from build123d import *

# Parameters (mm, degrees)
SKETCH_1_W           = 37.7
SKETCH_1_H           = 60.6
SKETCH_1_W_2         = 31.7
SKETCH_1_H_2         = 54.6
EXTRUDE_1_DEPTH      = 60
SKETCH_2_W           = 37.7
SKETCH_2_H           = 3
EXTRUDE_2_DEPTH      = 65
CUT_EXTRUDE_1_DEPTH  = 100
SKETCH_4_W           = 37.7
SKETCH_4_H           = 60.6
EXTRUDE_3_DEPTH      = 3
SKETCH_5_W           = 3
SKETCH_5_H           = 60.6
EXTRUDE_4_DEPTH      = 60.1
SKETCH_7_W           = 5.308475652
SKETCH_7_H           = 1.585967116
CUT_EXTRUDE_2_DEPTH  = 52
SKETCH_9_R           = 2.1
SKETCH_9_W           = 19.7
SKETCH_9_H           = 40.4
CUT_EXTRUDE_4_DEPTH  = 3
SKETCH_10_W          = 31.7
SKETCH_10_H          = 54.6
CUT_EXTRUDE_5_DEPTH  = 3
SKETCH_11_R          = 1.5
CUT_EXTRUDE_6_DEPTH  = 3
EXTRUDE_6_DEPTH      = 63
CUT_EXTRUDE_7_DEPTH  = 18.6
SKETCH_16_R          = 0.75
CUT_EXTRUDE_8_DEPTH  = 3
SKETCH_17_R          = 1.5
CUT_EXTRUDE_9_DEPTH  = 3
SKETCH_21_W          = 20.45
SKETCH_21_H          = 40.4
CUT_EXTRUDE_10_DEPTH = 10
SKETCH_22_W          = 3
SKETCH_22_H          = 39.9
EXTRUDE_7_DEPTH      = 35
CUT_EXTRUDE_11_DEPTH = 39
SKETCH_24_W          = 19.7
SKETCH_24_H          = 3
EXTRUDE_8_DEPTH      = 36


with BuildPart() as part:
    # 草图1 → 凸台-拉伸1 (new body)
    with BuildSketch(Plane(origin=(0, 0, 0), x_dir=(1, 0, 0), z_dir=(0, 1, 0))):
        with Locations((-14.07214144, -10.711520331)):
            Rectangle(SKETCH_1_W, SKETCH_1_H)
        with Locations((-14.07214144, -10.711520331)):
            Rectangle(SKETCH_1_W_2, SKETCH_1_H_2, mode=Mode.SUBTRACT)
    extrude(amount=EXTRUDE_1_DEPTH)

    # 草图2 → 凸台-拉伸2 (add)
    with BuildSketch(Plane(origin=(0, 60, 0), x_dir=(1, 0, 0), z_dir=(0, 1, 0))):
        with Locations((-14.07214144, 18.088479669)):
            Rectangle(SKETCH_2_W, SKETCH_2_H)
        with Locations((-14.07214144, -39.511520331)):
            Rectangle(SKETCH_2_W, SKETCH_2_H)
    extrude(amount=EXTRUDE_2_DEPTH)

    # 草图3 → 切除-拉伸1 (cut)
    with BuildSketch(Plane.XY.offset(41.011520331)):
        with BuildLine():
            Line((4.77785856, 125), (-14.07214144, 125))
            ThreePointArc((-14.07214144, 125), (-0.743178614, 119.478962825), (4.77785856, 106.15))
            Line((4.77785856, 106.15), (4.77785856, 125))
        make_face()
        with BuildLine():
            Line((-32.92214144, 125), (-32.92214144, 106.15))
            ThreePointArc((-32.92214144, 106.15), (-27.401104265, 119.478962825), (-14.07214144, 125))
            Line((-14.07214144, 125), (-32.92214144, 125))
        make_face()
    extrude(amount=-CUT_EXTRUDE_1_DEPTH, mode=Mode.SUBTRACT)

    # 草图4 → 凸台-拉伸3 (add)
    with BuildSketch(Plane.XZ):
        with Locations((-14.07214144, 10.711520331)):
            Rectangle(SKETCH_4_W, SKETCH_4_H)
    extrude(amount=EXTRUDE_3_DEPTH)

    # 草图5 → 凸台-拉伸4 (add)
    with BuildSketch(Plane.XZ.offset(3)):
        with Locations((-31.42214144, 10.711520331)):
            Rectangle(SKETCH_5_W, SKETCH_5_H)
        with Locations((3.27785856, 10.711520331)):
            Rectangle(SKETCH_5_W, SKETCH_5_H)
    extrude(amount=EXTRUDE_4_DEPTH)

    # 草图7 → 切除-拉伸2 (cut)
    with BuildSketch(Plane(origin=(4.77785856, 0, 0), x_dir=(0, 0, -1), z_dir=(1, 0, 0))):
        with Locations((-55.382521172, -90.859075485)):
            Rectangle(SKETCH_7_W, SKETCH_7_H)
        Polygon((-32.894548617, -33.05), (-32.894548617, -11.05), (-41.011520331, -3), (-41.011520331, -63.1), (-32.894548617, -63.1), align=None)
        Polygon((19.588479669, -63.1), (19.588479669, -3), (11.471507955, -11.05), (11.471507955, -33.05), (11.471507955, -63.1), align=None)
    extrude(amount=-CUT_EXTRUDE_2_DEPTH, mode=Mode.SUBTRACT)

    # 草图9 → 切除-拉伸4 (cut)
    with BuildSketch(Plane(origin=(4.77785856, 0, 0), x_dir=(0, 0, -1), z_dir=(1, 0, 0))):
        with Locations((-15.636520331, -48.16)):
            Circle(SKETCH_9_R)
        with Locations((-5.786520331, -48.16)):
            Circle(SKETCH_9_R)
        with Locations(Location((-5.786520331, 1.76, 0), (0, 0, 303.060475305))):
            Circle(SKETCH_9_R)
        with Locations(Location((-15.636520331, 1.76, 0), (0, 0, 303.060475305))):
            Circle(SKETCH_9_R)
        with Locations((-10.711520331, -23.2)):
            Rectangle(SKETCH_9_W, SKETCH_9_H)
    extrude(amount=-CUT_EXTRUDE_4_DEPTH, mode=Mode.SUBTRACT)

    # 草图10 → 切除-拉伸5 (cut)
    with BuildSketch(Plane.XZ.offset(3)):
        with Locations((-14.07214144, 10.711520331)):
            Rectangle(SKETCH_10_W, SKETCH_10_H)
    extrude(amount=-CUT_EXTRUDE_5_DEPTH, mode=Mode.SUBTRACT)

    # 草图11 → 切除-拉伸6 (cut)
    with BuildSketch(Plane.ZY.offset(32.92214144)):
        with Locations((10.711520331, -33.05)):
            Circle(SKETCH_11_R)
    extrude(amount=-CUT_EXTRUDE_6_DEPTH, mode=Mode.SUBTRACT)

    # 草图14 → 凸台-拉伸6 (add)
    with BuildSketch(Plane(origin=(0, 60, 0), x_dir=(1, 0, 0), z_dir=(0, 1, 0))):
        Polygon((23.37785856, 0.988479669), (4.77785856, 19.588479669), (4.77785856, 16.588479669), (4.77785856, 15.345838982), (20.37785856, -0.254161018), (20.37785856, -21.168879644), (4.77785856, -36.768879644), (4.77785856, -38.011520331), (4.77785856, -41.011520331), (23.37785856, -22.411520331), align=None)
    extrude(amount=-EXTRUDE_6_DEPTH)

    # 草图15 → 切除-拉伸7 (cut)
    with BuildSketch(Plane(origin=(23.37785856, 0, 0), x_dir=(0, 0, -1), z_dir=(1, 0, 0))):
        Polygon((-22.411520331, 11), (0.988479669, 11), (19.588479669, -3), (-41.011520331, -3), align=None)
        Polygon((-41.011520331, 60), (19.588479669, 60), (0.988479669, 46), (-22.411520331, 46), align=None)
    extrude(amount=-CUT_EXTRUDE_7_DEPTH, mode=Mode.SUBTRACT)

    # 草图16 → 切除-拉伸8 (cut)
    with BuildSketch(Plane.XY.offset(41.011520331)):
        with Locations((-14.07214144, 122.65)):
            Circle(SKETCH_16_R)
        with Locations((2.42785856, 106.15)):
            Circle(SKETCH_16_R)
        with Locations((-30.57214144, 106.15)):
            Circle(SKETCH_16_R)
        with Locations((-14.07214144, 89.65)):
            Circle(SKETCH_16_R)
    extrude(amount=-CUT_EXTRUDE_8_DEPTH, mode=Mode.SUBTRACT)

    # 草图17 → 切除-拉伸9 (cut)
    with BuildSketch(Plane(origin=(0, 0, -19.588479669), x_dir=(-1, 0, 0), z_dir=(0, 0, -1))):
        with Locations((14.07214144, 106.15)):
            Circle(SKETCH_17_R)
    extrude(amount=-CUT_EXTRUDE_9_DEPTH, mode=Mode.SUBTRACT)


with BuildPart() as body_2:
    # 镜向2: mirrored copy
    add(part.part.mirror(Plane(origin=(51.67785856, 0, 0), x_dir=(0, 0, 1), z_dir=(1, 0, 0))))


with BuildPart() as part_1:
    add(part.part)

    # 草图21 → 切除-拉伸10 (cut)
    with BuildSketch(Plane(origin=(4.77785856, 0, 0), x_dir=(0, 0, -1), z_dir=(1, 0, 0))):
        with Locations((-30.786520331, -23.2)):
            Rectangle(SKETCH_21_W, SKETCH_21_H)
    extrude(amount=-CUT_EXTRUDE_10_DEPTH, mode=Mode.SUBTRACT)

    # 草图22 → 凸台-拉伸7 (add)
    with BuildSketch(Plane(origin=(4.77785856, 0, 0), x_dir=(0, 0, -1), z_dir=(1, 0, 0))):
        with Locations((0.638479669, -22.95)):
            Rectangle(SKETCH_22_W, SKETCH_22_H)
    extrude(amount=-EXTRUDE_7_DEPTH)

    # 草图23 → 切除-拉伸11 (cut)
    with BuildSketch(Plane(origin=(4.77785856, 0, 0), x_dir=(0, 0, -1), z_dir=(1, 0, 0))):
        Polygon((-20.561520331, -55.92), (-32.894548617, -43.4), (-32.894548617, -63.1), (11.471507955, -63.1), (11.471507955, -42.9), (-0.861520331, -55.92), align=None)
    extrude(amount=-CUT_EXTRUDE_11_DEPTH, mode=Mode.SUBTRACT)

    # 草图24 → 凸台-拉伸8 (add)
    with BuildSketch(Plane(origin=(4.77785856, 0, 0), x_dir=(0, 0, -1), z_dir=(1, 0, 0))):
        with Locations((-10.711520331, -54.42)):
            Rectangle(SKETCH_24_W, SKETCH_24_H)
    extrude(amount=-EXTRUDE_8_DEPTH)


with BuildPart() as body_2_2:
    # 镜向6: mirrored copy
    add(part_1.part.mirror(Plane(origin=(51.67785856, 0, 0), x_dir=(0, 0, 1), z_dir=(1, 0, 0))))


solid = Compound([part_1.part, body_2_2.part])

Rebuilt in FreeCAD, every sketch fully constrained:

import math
import FreeCAD as App
import Part
import Sketcher


def add_polygon(sketch, points):
    """Adds a closed chain of lines whose ends are joined by coincident constraints."""
    first, n = sketch.GeometryCount, len(points)
    for a, b in zip(points, points[1:] + points[:1]):
        sketch.addGeometry(Part.LineSegment(App.Vector(*a, 0), App.Vector(*b, 0)), False)
    for i in range(n):
        sketch.addConstraint(Sketcher.Constraint("Coincident", first + i, 2, first + (i + 1) % n, 1))

doc = App.newDocument("Part")
params = doc.addObject("Spreadsheet::Sheet", "Params")
for row, (alias, value) in enumerate([
    ("sketch1_width", "37.7 mm"),
    ("sketch1_width2", "31.7 mm"),
    ("sketch1_height", "60.6 mm"),
    ("sketch1_height2", "54.6 mm"),
    ("pad1_length", "60 mm"),
    ("sketch2_height", "3 mm"),
    ("sketch2_width", "37.7 mm"),
    ("pad2_length", "65 mm"),
    ("sketch3_radius", "18.85 mm"),
    ("pocket1_length", "100 mm"),
    ("sketch4_width", "37.7 mm"),
    ("sketch4_height", "60.6 mm"),
    ("pad3_length", "3 mm"),
    ("sketch5_width", "3 mm"),
    ("sketch5_height", "60.6 mm"),
    ("pad4_length", "60.1 mm"),
    ("sketch6_width", "60.1 mm"),
    ("sketch6_width2", "52.05 mm"),
    ("pocket2_length", "52 mm"),
    ("sketch7_diameter", "4.2 mm"),
    ("sketch7_width", "40.4 mm"),
    ("sketch7_height", "19.7 mm"),
    ("pocket3_length", "3 mm"),
    ("sketch8_width", "31.7 mm"),
    ("sketch8_height", "54.6 mm"),
    ("pocket4_length", "3 mm"),
    ("sketch9_diameter", "3 mm"),
    ("pocket5_length", "3 mm"),
    ("sketch10_height", "23.4 mm"),
    ("pad5_length", "63 mm"),
    ("sketch11_height", "23.4 mm"),
    ("sketch11_height2", "60.6 mm"),
    ("pocket6_length", "18.6 mm"),
    ("sketch12_diameter", "1.5 mm"),
    ("pocket7_length", "3 mm"),
    ("sketch13_diameter", "3 mm"),
    ("pocket8_length", "3 mm"),
    ("sketch14_width", "40.4 mm"),
    ("sketch14_height", "20.45 mm"),
    ("pocket9_length", "10 mm"),
    ("sketch15_height", "3 mm"),
    ("sketch15_width", "39.9 mm"),
    ("pad6_length", "35 mm"),
    ("sketch16_width", "19.7 mm"),
    ("sketch16_width2", "20.2 mm"),
    ("pocket10_length", "39 mm"),
    ("sketch17_width", "3 mm"),
    ("sketch17_height", "19.7 mm"),
    ("pad7_length", "36 mm"),
], start=1):
    params.set(f"A{row}", alias)
    params.set(f"B{row}", "=" + value)
    params.setAlias(f"B{row}", alias)

body = doc.addObject("PartDesign::Body", "Body")

# Sketch on XZ plane
sketch1 = body.newObject("Sketcher::SketchObject", "Sketch")
sketch1.AttachmentSupport = (doc.getObject("XZ_Plane"), [""])
sketch1.MapMode = "FlatFace"
add_polygon(sketch1, [(-33, -20), (-33, 41), (5, 41), (5, -20)])  # lines 0-3
add_polygon(sketch1, [(2, 38), (-30, 38), (-30, -17), (2, -17)])  # lines 4-7
sketch1.addConstraint(Sketcher.Constraint("Vertical", 0))
sketch1.addConstraint(Sketcher.Constraint("Horizontal", 1))
sketch1.addConstraint(Sketcher.Constraint("Vertical", 2))
sketch1.addConstraint(Sketcher.Constraint("Horizontal", 3))
sketch1.addConstraint(Sketcher.Constraint("Horizontal", 4))
sketch1.addConstraint(Sketcher.Constraint("Vertical", 5))
sketch1.addConstraint(Sketcher.Constraint("Horizontal", 6))
sketch1.addConstraint(Sketcher.Constraint("Vertical", 7))
sketch1.addConstraint(Sketcher.Constraint("DistanceX", 1, 1, 1, 2, 37.7))
sketch1.addConstraint(Sketcher.Constraint("DistanceX", 4, 2, 4, 1, 31.7))
sketch1.addConstraint(Sketcher.Constraint("DistanceY", 0, 1, 0, 2, 60.6))
sketch1.addConstraint(Sketcher.Constraint("DistanceY", 5, 2, 5, 1, 54.6))
sketch1.addConstraint(Sketcher.Constraint("DistanceX", 0, 2, 4, 2, 3.0))
sketch1.addConstraint(Sketcher.Constraint("DistanceY", 4, 2, 0, 2, 3.0))
sketch1.addConstraint(Sketcher.Constraint("DistanceX", 0, 2, -1, 1, 32.922141))
sketch1.addConstraint(Sketcher.Constraint("DistanceY", -1, 1, 0, 2, 41.01152))
sketch1.setExpression("Constraints[16]", "Params.sketch1_width")
sketch1.setExpression("Constraints[17]", "Params.sketch1_width2")
sketch1.setExpression("Constraints[18]", "Params.sketch1_height")
sketch1.setExpression("Constraints[19]", "Params.sketch1_height2")
pad1 = body.newObject("PartDesign::Pad", "Pad")
pad1.Profile = sketch1
pad1.setExpression("Length", "Params.pad1_length")
pad1.Reversed = True

# Sketch on XZ plane
sketch2 = body.newObject("Sketcher::SketchObject", "Sketch001")
sketch2.AttachmentSupport = (doc.getObject("XZ_Plane"), [""])
sketch2.MapMode = "FlatFace"
sketch2.AttachmentOffset = App.Placement(App.Vector(0, 0, -60), App.Rotation())
add_polygon(sketch2, [(-32.9, -19.6), (-32.9, -16.6), (4.8, -16.6), (4.8, -19.6)])  # lines 0-3
add_polygon(sketch2, [(-32.9, 38), (-32.9, 41), (4.8, 41), (4.8, 38)])  # lines 4-7
sketch2.addConstraint(Sketcher.Constraint("Vertical", 0))
sketch2.addConstraint(Sketcher.Constraint("Horizontal", 1))
sketch2.addConstraint(Sketcher.Constraint("Vertical", 2))
sketch2.addConstraint(Sketcher.Constraint("Horizontal", 3))
sketch2.addConstraint(Sketcher.Constraint("Vertical", 4))
sketch2.addConstraint(Sketcher.Constraint("Horizontal", 5))
sketch2.addConstraint(Sketcher.Constraint("Vertical", 6))
sketch2.addConstraint(Sketcher.Constraint("Horizontal", 7))
sketch2.addConstraint(Sketcher.Constraint("Vertical", 3, 2, 4, 2))
sketch2.addConstraint(Sketcher.Constraint("Vertical", 2, 2, 5, 2))
sketch2.addConstraint(Sketcher.Constraint("Equal", 2, 4))
sketch2.addConstraint(Sketcher.Constraint("DistanceY", 0, 1, 0, 2, 3.0))
sketch2.addConstraint(Sketcher.Constraint("DistanceX", 1, 1, 1, 2, 37.7))
sketch2.addConstraint(Sketcher.Constraint("DistanceY", 0, 2, 4, 2, 57.6))
sketch2.addConstraint(Sketcher.Constraint("DistanceX", 0, 2, -1, 1, 32.922141))
sketch2.addConstraint(Sketcher.Constraint("DistanceY", 0, 2, -1, 1, 16.58848))
sketch2.setExpression("Constraints[19]", "Params.sketch2_height")
sketch2.setExpression("Constraints[20]", "Params.sketch2_width")
pad2 = body.newObject("PartDesign::Pad", "Pad001")
pad2.Profile = sketch2
pad2.setExpression("Length", "Params.pad2_length")
pad2.Reversed = True

# Sketch on XY plane
sketch3 = body.newObject("Sketcher::SketchObject", "Sketch002")
sketch3.AttachmentSupport = (doc.getObject("XY_Plane"), [""])
sketch3.MapMode = "FlatFace"
sketch3.AttachmentOffset = App.Placement(App.Vector(0, 0, 41.01152), App.Rotation())
sketch3.addGeometry(Part.LineSegment(App.Vector(5, 125, 0), App.Vector(-14, 125, 0)), False)
sketch3.addGeometry(Part.ArcOfCircle(Part.Circle(App.Vector(-14, 106, 0), App.Vector(0, 0, 1), 19), math.radians(0), math.radians(90)), False)
sketch3.addGeometry(Part.LineSegment(App.Vector(5, 106, 0), App.Vector(5, 125, 0)), False)
sketch3.addGeometry(Part.LineSegment(App.Vector(-33, 125, 0), App.Vector(-33, 106, 0)), False)
sketch3.addGeometry(Part.ArcOfCircle(Part.Circle(App.Vector(-14, 106, 0), App.Vector(0, 0, 1), 19), math.radians(90), math.radians(180)), False)
sketch3.addGeometry(Part.LineSegment(App.Vector(-14, 125, 0), App.Vector(-33, 125, 0)), False)
sketch3.addConstraint(Sketcher.Constraint("Tangent", 0, 2, 1, 2))
sketch3.addConstraint(Sketcher.Constraint("Tangent", 1, 1, 2, 1))
sketch3.addConstraint(Sketcher.Constraint("Coincident", 2, 2, 0, 1))
sketch3.addConstraint(Sketcher.Constraint("Tangent", 3, 2, 4, 2))
sketch3.addConstraint(Sketcher.Constraint("Tangent", 4, 1, 5, 1))
sketch3.addConstraint(Sketcher.Constraint("Coincident", 5, 2, 3, 1))
sketch3.addConstraint(Sketcher.Constraint("Horizontal", 0))
sketch3.addConstraint(Sketcher.Constraint("Vertical", 2))
sketch3.addConstraint(Sketcher.Constraint("Vertical", 3))
sketch3.addConstraint(Sketcher.Constraint("Horizontal", 5))
sketch3.addConstraint(Sketcher.Constraint("Coincident", 4, 3, 1, 3))
sketch3.addConstraint(Sketcher.Constraint("Equal", 1, 4))
sketch3.addConstraint(Sketcher.Constraint("Radius", 1, 18.85))
sketch3.addConstraint(Sketcher.Constraint("DistanceY", -1, 1, 0, 2, 125.0))
sketch3.addConstraint(Sketcher.Constraint("DistanceX", 1, 3, -1, 1, 14.072141))
sketch3.setExpression("Constraints[12]", "Params.sketch3_radius")
pocket1 = body.newObject("PartDesign::Pocket", "Pocket")
pocket1.Profile = sketch3
pocket1.setExpression("Length", "Params.pocket1_length")

# Sketch on XZ plane
sketch4 = body.newObject("Sketcher::SketchObject", "Sketch003")
sketch4.AttachmentSupport = (doc.getObject("XZ_Plane"), [""])
sketch4.MapMode = "FlatFace"
add_polygon(sketch4, [(-33, 41), (-33, -20), (5, -20), (5, 41)])  # lines 0-3
sketch4.addConstraint(Sketcher.Constraint("Vertical", 0))
sketch4.addConstraint(Sketcher.Constraint("Horizontal", 1))
sketch4.addConstraint(Sketcher.Constraint("Vertical", 2))
sketch4.addConstraint(Sketcher.Constraint("Horizontal", 3))
sketch4.addConstraint(Sketcher.Constraint("DistanceX", 1, 1, 1, 2, 37.7))
sketch4.addConstraint(Sketcher.Constraint("DistanceY", 0, 2, 0, 1, 60.6))
sketch4.addConstraint(Sketcher.Constraint("DistanceX", 0, 2, -1, 1, 32.922141))
sketch4.addConstraint(Sketcher.Constraint("DistanceY", 0, 2, -1, 1, 19.58848))
sketch4.setExpression("Constraints[8]", "Params.sketch4_width")
sketch4.setExpression("Constraints[9]", "Params.sketch4_height")
pad3 = body.newObject("PartDesign::Pad", "Pad002")
pad3.Profile = sketch4
pad3.setExpression("Length", "Params.pad3_length")

# Sketch on XZ plane
sketch5 = body.newObject("Sketcher::SketchObject", "Sketch004")
sketch5.AttachmentSupport = (doc.getObject("XZ_Plane"), [""])
sketch5.MapMode = "FlatFace"
sketch5.AttachmentOffset = App.Placement(App.Vector(0, 0, 3), App.Rotation())
add_polygon(sketch5, [(-32.9, 41), (-32.9, -19.6), (-29.9, -19.6), (-29.9, 41)])  # lines 0-3
add_polygon(sketch5, [(1.8, 41), (1.8, -19.6), (4.8, -19.6), (4.8, 41)])  # lines 4-7
sketch5.addConstraint(Sketcher.Constraint("Vertical", 0))
sketch5.addConstraint(Sketcher.Constraint("Horizontal", 1))
sketch5.addConstraint(Sketcher.Constraint("Vertical", 2))
sketch5.addConstraint(Sketcher.Constraint("Horizontal", 3))
sketch5.addConstraint(Sketcher.Constraint("Vertical", 4))
sketch5.addConstraint(Sketcher.Constraint("Horizontal", 5))
sketch5.addConstraint(Sketcher.Constraint("Vertical", 6))
sketch5.addConstraint(Sketcher.Constraint("Horizontal", 7))
sketch5.addConstraint(Sketcher.Constraint("Horizontal", 1, 2, 4, 2))
sketch5.addConstraint(Sketcher.Constraint("Horizontal", 3, 2, 6, 2))
sketch5.addConstraint(Sketcher.Constraint("Equal", 3, 5))
sketch5.addConstraint(Sketcher.Constraint("DistanceX", 1, 1, 1, 2, 3.0))
sketch5.addConstraint(Sketcher.Constraint("DistanceY", 0, 2, 0, 1, 60.6))
sketch5.addConstraint(Sketcher.Constraint("DistanceX", 1, 2, 4, 2, 31.7))
sketch5.addConstraint(Sketcher.Constraint("DistanceX", 0, 2, -1, 1, 32.922141))
sketch5.addConstraint(Sketcher.Constraint("DistanceY", 0, 2, -1, 1, 19.58848))
sketch5.setExpression("Constraints[19]", "Params.sketch5_width")
sketch5.setExpression("Constraints[20]", "Params.sketch5_height")
pad4 = body.newObject("PartDesign::Pad", "Pad003")
pad4.Profile = sketch5
pad4.setExpression("Length", "Params.pad4_length")

# Sketch on YZ plane
sketch6 = body.newObject("Sketcher::SketchObject", "Sketch005")
sketch6.AttachmentSupport = (doc.getObject("YZ_Plane"), [""])
sketch6.MapMode = "FlatFace"
sketch6.AttachmentOffset = App.Placement(App.Vector(0, 0, 4.777859), App.Rotation())
add_polygon(sketch6, [(-90.1, 58), (-91.7, 58), (-91.7, 52.7), (-90.1, 52.7)])  # lines 0-3
add_polygon(sketch6, [(-11.1, 32.9), (-3, 41), (-63.1, 41), (-63.1, 32.9)])  # lines 4-7
add_polygon(sketch6, [(-63.1, -19.6), (-3, -19.6), (-11.1, -11.5), (-63.1, -11.5)])  # lines 8-11
sketch6.addConstraint(Sketcher.Constraint("Horizontal", 0))
sketch6.addConstraint(Sketcher.Constraint("Vertical", 1))
sketch6.addConstraint(Sketcher.Constraint("Horizontal", 2))
sketch6.addConstraint(Sketcher.Constraint("Vertical", 3))
sketch6.addConstraint(Sketcher.Constraint("Horizontal", 5))
sketch6.addConstraint(Sketcher.Constraint("Vertical", 6))
sketch6.addConstraint(Sketcher.Constraint("Horizontal", 7))
sketch6.addConstraint(Sketcher.Constraint("Horizontal", 8))
sketch6.addConstraint(Sketcher.Constraint("Horizontal", 10))
sketch6.addConstraint(Sketcher.Constraint("Vertical", 11))
sketch6.addConstraint(Sketcher.Constraint("Vertical", 4, 2, 8, 2))
sketch6.addConstraint(Sketcher.Constraint("Vertical", 7, 2, 9, 2))
sketch6.addConstraint(Sketcher.Constraint("Vertical", 6, 2, 10, 2))
sketch6.addConstraint(Sketcher.Constraint("Equal", 6, 11))
sketch6.addConstraint(Sketcher.Constraint("DistanceX", 5, 2, 5, 1, 60.1))
sketch6.addConstraint(Sketcher.Constraint("DistanceX", 4, 2, -1, 1, 3.0))
sketch6.addConstraint(Sketcher.Constraint("DistanceX", 7, 1, 7, 2, 52.05))
sketch6.addConstraint(Sketcher.Constraint("DistanceY", 8, 2, 4, 2, 60.6))
sketch6.addConstraint(Sketcher.Constraint("DistanceY", 6, 2, 6, 1, 8.116972))
sketch6.addConstraint(Sketcher.Constraint("DistanceX", 0, 2, 0, 1, 1.585967))
sketch6.addConstraint(Sketcher.Constraint("DistanceY", 1, 2, 1, 1, 5.308476))
sketch6.addConstraint(Sketcher.Constraint("DistanceX", 0, 2, -1, 1, 91.652059))
sketch6.addConstraint(Sketcher.Constraint("DistanceY", -1, 1, 0, 2, 58.036759))
sketch6.addConstraint(Sketcher.Constraint("DistanceY", -1, 1, 4, 2, 41.01152))
sketch6.setExpression("Constraints[26]", "Params.sketch6_width")
sketch6.setExpression("Constraints[28]", "Params.sketch6_width2")
pocket2 = body.newObject("PartDesign::Pocket", "Pocket001")
pocket2.Profile = sketch6
pocket2.setExpression("Length", "Params.pocket2_length")

# Sketch on YZ plane
sketch7 = body.newObject("Sketcher::SketchObject", "Sketch006")
sketch7.AttachmentSupport = (doc.getObject("YZ_Plane"), [""])
sketch7.MapMode = "FlatFace"
sketch7.AttachmentOffset = App.Placement(App.Vector(0, 0, 4.777859), App.Rotation())
sketch7.addGeometry(Part.Circle(App.Vector(-48.2, 15.6, 0), App.Vector(0, 0, 1), 2.1), False)  # 0
sketch7.addGeometry(Part.Circle(App.Vector(-48.2, 5.8, 0), App.Vector(0, 0, 1), 2.1), False)  # 1
sketch7.addGeometry(Part.Circle(App.Vector(1.8, 5.8, 0), App.Vector(0, 0, 1), 2.1), False)  # 2
sketch7.addGeometry(Part.Circle(App.Vector(1.8, 15.6, 0), App.Vector(0, 0, 1), 2.1), False)  # 3
add_polygon(sketch7, [(-3, 20.6), (-43.4, 20.6), (-43.4, 0.9), (-3, 0.9)])  # lines 4-7
sketch7.addConstraint(Sketcher.Constraint("Horizontal", 4))
sketch7.addConstraint(Sketcher.Constraint("Vertical", 5))
sketch7.addConstraint(Sketcher.Constraint("Horizontal", 6))
sketch7.addConstraint(Sketcher.Constraint("Vertical", 7))
sketch7.addConstraint(Sketcher.Constraint("Equal", 0, 1))
sketch7.addConstraint(Sketcher.Constraint("Equal", 1, 2))
sketch7.addConstraint(Sketcher.Constraint("Equal", 2, 3))
sketch7.addConstraint(Sketcher.Constraint("Horizontal", 1, 3, 2, 3))
sketch7.addConstraint(Sketcher.Constraint("Horizontal", 0, 3, 3, 3))
sketch7.addConstraint(Sketcher.Constraint("Vertical", 0, 3, 1, 3))
sketch7.addConstraint(Sketcher.Constraint("Vertical", 2, 3, 3, 3))
sketch7.addConstraint(Sketcher.Constraint("Diameter", 0, 4.2))
sketch7.addConstraint(Sketcher.Constraint("DistanceX", 4, 2, 4, 1, 40.4))
sketch7.addConstraint(Sketcher.Constraint("DistanceY", 5, 2, 5, 1, 19.7))
sketch7.addConstraint(Sketcher.Constraint("DistanceX", 6, 2, -1, 1, 3.0))
sketch7.addConstraint(Sketcher.Constraint("DistanceX", 0, 3, -1, 1, 48.16))
sketch7.addConstraint(Sketcher.Constraint("DistanceX", -1, 1, 2, 3, 1.76))
sketch7.addConstraint(Sketcher.Constraint("DistanceY", 1, 3, 0, 3, 9.85))
sketch7.addConstraint(Sketcher.Constraint("DistanceY", 0, 3, 4, 2, 4.925))
sketch7.addConstraint(Sketcher.Constraint("DistanceY", -1, 1, 0, 3, 15.63652))
sketch7.setExpression("Constraints[15]", "Params.sketch7_diameter")
sketch7.setExpression("Constraints[16]", "Params.sketch7_width")
sketch7.setExpression("Constraints[17]", "Params.sketch7_height")
pocket3 = body.newObject("PartDesign::Pocket", "Pocket002")
pocket3.Profile = sketch7
pocket3.setExpression("Length", "Params.pocket3_length")

# Sketch on XZ plane
sketch8 = body.newObject("Sketcher::SketchObject", "Sketch007")
sketch8.AttachmentSupport = (doc.getObject("XZ_Plane"), [""])
sketch8.MapMode = "FlatFace"
sketch8.AttachmentOffset = App.Placement(App.Vector(0, 0, 3), App.Rotation())
add_polygon(sketch8, [(-30, 38), (-30, -17), (2, -17), (2, 38)])  # lines 0-3
sketch8.addConstraint(Sketcher.Constraint("Vertical", 0))
sketch8.addConstraint(Sketcher.Constraint("Horizontal", 1))
sketch8.addConstraint(Sketcher.Constraint("Vertical", 2))
sketch8.addConstraint(Sketcher.Constraint("Horizontal", 3))
sketch8.addConstraint(Sketcher.Constraint("DistanceX", 1, 1, 1, 2, 31.7))
sketch8.addConstraint(Sketcher.Constraint("DistanceY", 0, 2, 0, 1, 54.6))
sketch8.addConstraint(Sketcher.Constraint("DistanceX", 0, 2, -1, 1, 29.922141))
sketch8.addConstraint(Sketcher.Constraint("DistanceY", 0, 2, -1, 1, 16.58848))
sketch8.setExpression("Constraints[8]", "Params.sketch8_width")
sketch8.setExpression("Constraints[9]", "Params.sketch8_height")
pocket4 = body.newObject("PartDesign::Pocket", "Pocket003")
pocket4.Profile = sketch8
pocket4.setExpression("Length", "Params.pocket4_length")

# Sketch on YZ plane
sketch9 = body.newObject("Sketcher::SketchObject", "Sketch008")
sketch9.AttachmentSupport = (doc.getObject("YZ_Plane"), [""])
sketch9.MapMode = "FlatFace"
sketch9.AttachmentOffset = App.Placement(App.Vector(0, 0, -32.922141), App.Rotation())
sketch9.addGeometry(Part.Circle(App.Vector(-33, 10.7, 0), App.Vector(0, 0, 1), 1.5), False)
sketch9.addConstraint(Sketcher.Constraint("Diameter", 0, 3.0))
sketch9.addConstraint(Sketcher.Constraint("DistanceX", 0, 3, -1, 1, 33.05))
sketch9.addConstraint(Sketcher.Constraint("DistanceY", -1, 1, 0, 3, 10.71152))
sketch9.setExpression("Constraints[0]", "Params.sketch9_diameter")
pocket5 = body.newObject("PartDesign::Pocket", "Pocket004")
pocket5.Profile = sketch9
pocket5.setExpression("Length", "Params.pocket5_length")
pocket5.Reversed = True

# Sketch on XZ plane
sketch10 = body.newObject("Sketcher::SketchObject", "Sketch009")
sketch10.AttachmentSupport = (doc.getObject("XZ_Plane"), [""])
sketch10.MapMode = "FlatFace"
sketch10.AttachmentOffset = App.Placement(App.Vector(0, 0, -60), App.Rotation())
add_polygon(sketch10, [(23.4, -1), (4.8, -19.6), (4.8, -15.3), (20.4, 0.3), (20.4, 21.2), (4.8, 36.8), (4.8, 41), (23.4, 22.4)])  # lines 0-7
sketch10.addConstraint(Sketcher.Constraint("Vertical", 1))
sketch10.addConstraint(Sketcher.Constraint("Vertical", 3))
sketch10.addConstraint(Sketcher.Constraint("Vertical", 5))
sketch10.addConstraint(Sketcher.Constraint("Vertical", 7))
sketch10.addConstraint(Sketcher.Constraint("Parallel", 0, 2))
sketch10.addConstraint(Sketcher.Constraint("Perpendicular", 2, 4))
sketch10.addConstraint(Sketcher.Constraint("Parallel", 4, 6))
sketch10.addConstraint(Sketcher.Constraint("Vertical", 1, 2, 4, 2))
sketch10.addConstraint(Sketcher.Constraint("Equal", 1, 5))
sketch10.addConstraint(Sketcher.Constraint("Equal", 2, 4))
sketch10.addConstraint(Sketcher.Constraint("DistanceY", 7, 2, 7, 1, 23.4))
sketch10.addConstraint(Sketcher.Constraint("DistanceX", 3, 2, 6, 2, 3.0))
sketch10.addConstraint(Sketcher.Constraint("DistanceX", 1, 2, 2, 2, 15.6))
sketch10.addConstraint(Sketcher.Constraint("DistanceY", 1, 1, 1, 2, 4.242641))
sketch10.addConstraint(Sketcher.Constraint("DistanceX", -1, 1, 0, 2, 4.777859))
sketch10.addConstraint(Sketcher.Constraint("DistanceY", 0, 2, -1, 1, 19.58848))
sketch10.setExpression("Constraints[18]", "Params.sketch10_height")
pad5 = body.newObject("PartDesign::Pad", "Pad004")
pad5.Profile = sketch10
pad5.setExpression("Length", "Params.pad5_length")

# Sketch on YZ plane
sketch11 = body.newObject("Sketcher::SketchObject", "Sketch010")
sketch11.AttachmentSupport = (doc.getObject("YZ_Plane"), [""])
sketch11.MapMode = "FlatFace"
sketch11.AttachmentOffset = App.Placement(App.Vector(0, 0, 23.377859), App.Rotation())
add_polygon(sketch11, [(11, -1), (11, 22), (-3, 41), (-3, -20)])  # lines 0-3
add_polygon(sketch11, [(60, -20), (60, 41), (46, 22), (46, -1)])  # lines 4-7
sketch11.addConstraint(Sketcher.Constraint("Vertical", 0))
sketch11.addConstraint(Sketcher.Constraint("Vertical", 2))
sketch11.addConstraint(Sketcher.Constraint("Vertical", 4))
sketch11.addConstraint(Sketcher.Constraint("Vertical", 6))
sketch11.addConstraint(Sketcher.Constraint("Parallel", 3, 5))
sketch11.addConstraint(Sketcher.Constraint("Parallel", 1, 7))
sketch11.addConstraint(Sketcher.Constraint("Horizontal", 1, 2, 4, 2))
sketch11.addConstraint(Sketcher.Constraint("Horizontal", 0, 2, 5, 2))
sketch11.addConstraint(Sketcher.Constraint("Horizontal", 3, 2, 6, 2))
sketch11.addConstraint(Sketcher.Constraint("Horizontal", 2, 2, 7, 2))
sketch11.addConstraint(Sketcher.Constraint("DistanceY", 0, 1, 0, 2, 23.4))
sketch11.addConstraint(Sketcher.Constraint("DistanceY", 2, 2, 2, 1, 60.6))
sketch11.addConstraint(Sketcher.Constraint("DistanceX", -1, 1, 0, 2, 11.0))
sketch11.addConstraint(Sketcher.Constraint("DistanceX", 1, 2, -1, 1, 3.0))
sketch11.addConstraint(Sketcher.Constraint("DistanceX", -1, 1, 4, 2, 60.0))
sketch11.addConstraint(Sketcher.Constraint("DistanceY", -1, 1, 0, 2, 22.41152))
sketch11.setExpression("Constraints[18]", "Params.sketch11_height")
sketch11.setExpression("Constraints[19]", "Params.sketch11_height2")
pocket6 = body.newObject("PartDesign::Pocket", "Pocket005")
pocket6.Profile = sketch11
pocket6.setExpression("Length", "Params.pocket6_length")

# Sketch on XY plane
sketch12 = body.newObject("Sketcher::SketchObject", "Sketch011")
sketch12.AttachmentSupport = (doc.getObject("XY_Plane"), [""])
sketch12.MapMode = "FlatFace"
sketch12.AttachmentOffset = App.Placement(App.Vector(0, 0, 41.01152), App.Rotation())
sketch12.addGeometry(Part.Circle(App.Vector(-14.1, 122.7, 0), App.Vector(0, 0, 1), 0.8), False)
sketch12.addGeometry(Part.Circle(App.Vector(2.4, 106.2, 0), App.Vector(0, 0, 1), 0.8), False)
sketch12.addGeometry(Part.Circle(App.Vector(-30.6, 106.2, 0), App.Vector(0, 0, 1), 0.8), False)
sketch12.addGeometry(Part.Circle(App.Vector(-14.1, 89.7, 0), App.Vector(0, 0, 1), 0.8), False)
sketch12.addConstraint(Sketcher.Constraint("Equal", 0, 1))
sketch12.addConstraint(Sketcher.Constraint("Equal", 1, 2))
sketch12.addConstraint(Sketcher.Constraint("Equal", 2, 3))
sketch12.addConstraint(Sketcher.Constraint("Horizontal", 1, 3, 2, 3))
sketch12.addConstraint(Sketcher.Constraint("Vertical", 0, 3, 3, 3))
sketch12.addConstraint(Sketcher.Constraint("Diameter", 0, 1.5))
sketch12.addConstraint(Sketcher.Constraint("DistanceX", 2, 3, 1, 3, 33.0))
sketch12.addConstraint(Sketcher.Constraint("DistanceY", 3, 3, 0, 3, 33.0))
sketch12.addConstraint(Sketcher.Constraint("DistanceX", 0, 3, 1, 3, 16.5))
sketch12.addConstraint(Sketcher.Constraint("DistanceY", 1, 3, 0, 3, 16.5))
sketch12.addConstraint(Sketcher.Constraint("DistanceY", -1, 1, 0, 3, 122.65))
sketch12.addConstraint(Sketcher.Constraint("DistanceX", 0, 3, -1, 1, 14.072141))
sketch12.setExpression("Constraints[5]", "Params.sketch12_diameter")
pocket7 = body.newObject("PartDesign::Pocket", "Pocket006")
pocket7.Profile = sketch12
pocket7.setExpression("Length", "Params.pocket7_length")

# Sketch on XY plane
sketch13 = body.newObject("Sketcher::SketchObject", "Sketch012")
sketch13.AttachmentSupport = (doc.getObject("XY_Plane"), [""])
sketch13.MapMode = "FlatFace"
sketch13.AttachmentOffset = App.Placement(App.Vector(0, 0, -19.58848), App.Rotation())
sketch13.addGeometry(Part.Circle(App.Vector(-14.1, 106.2, 0), App.Vector(0, 0, 1), 1.5), False)
sketch13.addConstraint(Sketcher.Constraint("Diameter", 0, 3.0))
sketch13.addConstraint(Sketcher.Constraint("DistanceY", -1, 1, 0, 3, 106.15))
sketch13.addConstraint(Sketcher.Constraint("DistanceX", 0, 3, -1, 1, 14.072141))
sketch13.setExpression("Constraints[0]", "Params.sketch13_diameter")
pocket8 = body.newObject("PartDesign::Pocket", "Pocket007")
pocket8.Profile = sketch13
pocket8.setExpression("Length", "Params.pocket8_length")
pocket8.Reversed = True
body2 = doc.addObject("PartDesign::Body", "Body001")
doc.recompute()

mirroring = doc.addObject("Part::Mirroring", "Mirroring")
mirroring.Source = body
mirroring.Base = App.Vector(51.677859, 0, 0)
mirroring.Normal = App.Vector(1, 0, 0)
body2.BaseFeature = mirroring
doc.recompute()

# Sketch on YZ plane
sketch14 = body.newObject("Sketcher::SketchObject", "Sketch013")
sketch14.AttachmentSupport = (doc.getObject("YZ_Plane"), [""])
sketch14.MapMode = "FlatFace"
sketch14.AttachmentOffset = App.Placement(App.Vector(0, 0, 4.777859), App.Rotation())
add_polygon(sketch14, [(-3, 41), (-43, 41), (-43, 21), (-3, 21)])  # lines 0-3
sketch14.addConstraint(Sketcher.Constraint("Horizontal", 0))
sketch14.addConstraint(Sketcher.Constraint("Vertical", 1))
sketch14.addConstraint(Sketcher.Constraint("Horizontal", 2))
sketch14.addConstraint(Sketcher.Constraint("Vertical", 3))
sketch14.addConstraint(Sketcher.Constraint("DistanceX", 0, 2, 0, 1, 40.4))
sketch14.addConstraint(Sketcher.Constraint("DistanceX", 2, 2, -1, 1, 3.0))
sketch14.addConstraint(Sketcher.Constraint("DistanceY", 1, 2, 1, 1, 20.45))
sketch14.addConstraint(Sketcher.Constraint("DistanceY", -1, 1, 0, 2, 41.01152))
sketch14.setExpression("Constraints[8]", "Params.sketch14_width")
sketch14.setExpression("Constraints[10]", "Params.sketch14_height")
pocket9 = body.newObject("PartDesign::Pocket", "Pocket008")
pocket9.Profile = sketch14
pocket9.setExpression("Length", "Params.pocket9_length")

# Sketch on YZ plane
sketch15 = body.newObject("Sketcher::SketchObject", "Sketch014")
sketch15.AttachmentSupport = (doc.getObject("YZ_Plane"), [""])
sketch15.MapMode = "FlatFace"
sketch15.AttachmentOffset = App.Placement(App.Vector(0, 0, 4.777859), App.Rotation())
add_polygon(sketch15, [(-3, 0.9), (-42.9, 0.9), (-42.9, -2.1), (-3, -2.1)])  # lines 0-3
sketch15.addConstraint(Sketcher.Constraint("Horizontal", 0))
sketch15.addConstraint(Sketcher.Constraint("Vertical", 1))
sketch15.addConstraint(Sketcher.Constraint("Horizontal", 2))
sketch15.addConstraint(Sketcher.Constraint("Vertical", 3))
sketch15.addConstraint(Sketcher.Constraint("DistanceY", 1, 2, 1, 1, 3.0))
sketch15.addConstraint(Sketcher.Constraint("DistanceX", 0, 2, 0, 1, 39.9))
sketch15.addConstraint(Sketcher.Constraint("DistanceX", 2, 2, -1, 1, 3.0))
sketch15.addConstraint(Sketcher.Constraint("DistanceY", -1, 1, 0, 2, 0.86152))
sketch15.setExpression("Constraints[8]", "Params.sketch15_height")
sketch15.setExpression("Constraints[9]", "Params.sketch15_width")
pad6 = body.newObject("PartDesign::Pad", "Pad005")
pad6.Profile = sketch15
pad6.setExpression("Length", "Params.pad6_length")
pad6.Reversed = True

# Sketch on YZ plane
sketch16 = body.newObject("Sketcher::SketchObject", "Sketch015")
sketch16.AttachmentSupport = (doc.getObject("YZ_Plane"), [""])
sketch16.MapMode = "FlatFace"
sketch16.AttachmentOffset = App.Placement(App.Vector(0, 0, 4.777859), App.Rotation())
add_polygon(sketch16, [(-56, 21), (-43, 33), (-63, 33), (-63, -11), (-43, -11), (-56, 1)])  # lines 0-5
sketch16.addConstraint(Sketcher.Constraint("Horizontal", 1))
sketch16.addConstraint(Sketcher.Constraint("Vertical", 2))
sketch16.addConstraint(Sketcher.Constraint("Horizontal", 3))
sketch16.addConstraint(Sketcher.Constraint("Vertical", 5))
sketch16.addConstraint(Sketcher.Constraint("Equal", 1, 5))
sketch16.addConstraint(Sketcher.Constraint("DistanceX", 1, 2, 1, 1, 19.7))
sketch16.addConstraint(Sketcher.Constraint("DistanceX", 3, 1, 3, 2, 20.2))
sketch16.addConstraint(Sketcher.Constraint("DistanceX", 0, 2, -1, 1, 43.4))
sketch16.addConstraint(Sketcher.Constraint("DistanceX", 4, 2, -1, 1, 55.92))
sketch16.addConstraint(Sketcher.Constraint("Distance", 4, 17.933878))
sketch16.addConstraint(Sketcher.Constraint("DistanceY", 2, 2, 2, 1, 44.366057))
sketch16.addConstraint(Sketcher.Constraint("DistanceY", -1, 1, 0, 2, 32.894549))
sketch16.setExpression("Constraints[11]", "Params.sketch16_width")
sketch16.setExpression("Constraints[12]", "Params.sketch16_width2")
pocket10 = body.newObject("PartDesign::Pocket", "Pocket009")
pocket10.Profile = sketch16
pocket10.setExpression("Length", "Params.pocket10_length")

# Sketch on YZ plane
sketch17 = body.newObject("Sketcher::SketchObject", "Sketch016")
sketch17.AttachmentSupport = (doc.getObject("YZ_Plane"), [""])
sketch17.MapMode = "FlatFace"
sketch17.AttachmentOffset = App.Placement(App.Vector(0, 0, 4.777859), App.Rotation())
add_polygon(sketch17, [(-52.9, 20.6), (-55.9, 20.6), (-55.9, 0.9), (-52.9, 0.9)])  # lines 0-3
sketch17.addConstraint(Sketcher.Constraint("Horizontal", 0))
sketch17.addConstraint(Sketcher.Constraint("Vertical", 1))
sketch17.addConstraint(Sketcher.Constraint("Horizontal", 2))
sketch17.addConstraint(Sketcher.Constraint("Vertical", 3))
sketch17.addConstraint(Sketcher.Constraint("DistanceX", 0, 2, 0, 1, 3.0))
sketch17.addConstraint(Sketcher.Constraint("DistanceY", 1, 2, 1, 1, 19.7))
sketch17.addConstraint(Sketcher.Constraint("DistanceX", 0, 2, -1, 1, 55.92))
sketch17.addConstraint(Sketcher.Constraint("DistanceY", -1, 1, 0, 2, 20.56152))
sketch17.setExpression("Constraints[8]", "Params.sketch17_width")
sketch17.setExpression("Constraints[9]", "Params.sketch17_height")
pad7 = body.newObject("PartDesign::Pad", "Pad006")
pad7.Profile = sketch17
pad7.setExpression("Length", "Params.pad7_length")
pad7.Reversed = True
body3 = doc.addObject("PartDesign::Body", "Body002")
doc.recompute()

mirroring2 = doc.addObject("Part::Mirroring", "Mirroring001")
mirroring2.Source = body
mirroring2.Base = App.Vector(51.677859, 0, 0)
mirroring2.Normal = App.Vector(1, 0, 0)
body3.BaseFeature = mirroring2
doc.recompute()
body2.Visibility = False
mirroring.Visibility = False
mirroring2.Visibility = False

doc.recompute()
